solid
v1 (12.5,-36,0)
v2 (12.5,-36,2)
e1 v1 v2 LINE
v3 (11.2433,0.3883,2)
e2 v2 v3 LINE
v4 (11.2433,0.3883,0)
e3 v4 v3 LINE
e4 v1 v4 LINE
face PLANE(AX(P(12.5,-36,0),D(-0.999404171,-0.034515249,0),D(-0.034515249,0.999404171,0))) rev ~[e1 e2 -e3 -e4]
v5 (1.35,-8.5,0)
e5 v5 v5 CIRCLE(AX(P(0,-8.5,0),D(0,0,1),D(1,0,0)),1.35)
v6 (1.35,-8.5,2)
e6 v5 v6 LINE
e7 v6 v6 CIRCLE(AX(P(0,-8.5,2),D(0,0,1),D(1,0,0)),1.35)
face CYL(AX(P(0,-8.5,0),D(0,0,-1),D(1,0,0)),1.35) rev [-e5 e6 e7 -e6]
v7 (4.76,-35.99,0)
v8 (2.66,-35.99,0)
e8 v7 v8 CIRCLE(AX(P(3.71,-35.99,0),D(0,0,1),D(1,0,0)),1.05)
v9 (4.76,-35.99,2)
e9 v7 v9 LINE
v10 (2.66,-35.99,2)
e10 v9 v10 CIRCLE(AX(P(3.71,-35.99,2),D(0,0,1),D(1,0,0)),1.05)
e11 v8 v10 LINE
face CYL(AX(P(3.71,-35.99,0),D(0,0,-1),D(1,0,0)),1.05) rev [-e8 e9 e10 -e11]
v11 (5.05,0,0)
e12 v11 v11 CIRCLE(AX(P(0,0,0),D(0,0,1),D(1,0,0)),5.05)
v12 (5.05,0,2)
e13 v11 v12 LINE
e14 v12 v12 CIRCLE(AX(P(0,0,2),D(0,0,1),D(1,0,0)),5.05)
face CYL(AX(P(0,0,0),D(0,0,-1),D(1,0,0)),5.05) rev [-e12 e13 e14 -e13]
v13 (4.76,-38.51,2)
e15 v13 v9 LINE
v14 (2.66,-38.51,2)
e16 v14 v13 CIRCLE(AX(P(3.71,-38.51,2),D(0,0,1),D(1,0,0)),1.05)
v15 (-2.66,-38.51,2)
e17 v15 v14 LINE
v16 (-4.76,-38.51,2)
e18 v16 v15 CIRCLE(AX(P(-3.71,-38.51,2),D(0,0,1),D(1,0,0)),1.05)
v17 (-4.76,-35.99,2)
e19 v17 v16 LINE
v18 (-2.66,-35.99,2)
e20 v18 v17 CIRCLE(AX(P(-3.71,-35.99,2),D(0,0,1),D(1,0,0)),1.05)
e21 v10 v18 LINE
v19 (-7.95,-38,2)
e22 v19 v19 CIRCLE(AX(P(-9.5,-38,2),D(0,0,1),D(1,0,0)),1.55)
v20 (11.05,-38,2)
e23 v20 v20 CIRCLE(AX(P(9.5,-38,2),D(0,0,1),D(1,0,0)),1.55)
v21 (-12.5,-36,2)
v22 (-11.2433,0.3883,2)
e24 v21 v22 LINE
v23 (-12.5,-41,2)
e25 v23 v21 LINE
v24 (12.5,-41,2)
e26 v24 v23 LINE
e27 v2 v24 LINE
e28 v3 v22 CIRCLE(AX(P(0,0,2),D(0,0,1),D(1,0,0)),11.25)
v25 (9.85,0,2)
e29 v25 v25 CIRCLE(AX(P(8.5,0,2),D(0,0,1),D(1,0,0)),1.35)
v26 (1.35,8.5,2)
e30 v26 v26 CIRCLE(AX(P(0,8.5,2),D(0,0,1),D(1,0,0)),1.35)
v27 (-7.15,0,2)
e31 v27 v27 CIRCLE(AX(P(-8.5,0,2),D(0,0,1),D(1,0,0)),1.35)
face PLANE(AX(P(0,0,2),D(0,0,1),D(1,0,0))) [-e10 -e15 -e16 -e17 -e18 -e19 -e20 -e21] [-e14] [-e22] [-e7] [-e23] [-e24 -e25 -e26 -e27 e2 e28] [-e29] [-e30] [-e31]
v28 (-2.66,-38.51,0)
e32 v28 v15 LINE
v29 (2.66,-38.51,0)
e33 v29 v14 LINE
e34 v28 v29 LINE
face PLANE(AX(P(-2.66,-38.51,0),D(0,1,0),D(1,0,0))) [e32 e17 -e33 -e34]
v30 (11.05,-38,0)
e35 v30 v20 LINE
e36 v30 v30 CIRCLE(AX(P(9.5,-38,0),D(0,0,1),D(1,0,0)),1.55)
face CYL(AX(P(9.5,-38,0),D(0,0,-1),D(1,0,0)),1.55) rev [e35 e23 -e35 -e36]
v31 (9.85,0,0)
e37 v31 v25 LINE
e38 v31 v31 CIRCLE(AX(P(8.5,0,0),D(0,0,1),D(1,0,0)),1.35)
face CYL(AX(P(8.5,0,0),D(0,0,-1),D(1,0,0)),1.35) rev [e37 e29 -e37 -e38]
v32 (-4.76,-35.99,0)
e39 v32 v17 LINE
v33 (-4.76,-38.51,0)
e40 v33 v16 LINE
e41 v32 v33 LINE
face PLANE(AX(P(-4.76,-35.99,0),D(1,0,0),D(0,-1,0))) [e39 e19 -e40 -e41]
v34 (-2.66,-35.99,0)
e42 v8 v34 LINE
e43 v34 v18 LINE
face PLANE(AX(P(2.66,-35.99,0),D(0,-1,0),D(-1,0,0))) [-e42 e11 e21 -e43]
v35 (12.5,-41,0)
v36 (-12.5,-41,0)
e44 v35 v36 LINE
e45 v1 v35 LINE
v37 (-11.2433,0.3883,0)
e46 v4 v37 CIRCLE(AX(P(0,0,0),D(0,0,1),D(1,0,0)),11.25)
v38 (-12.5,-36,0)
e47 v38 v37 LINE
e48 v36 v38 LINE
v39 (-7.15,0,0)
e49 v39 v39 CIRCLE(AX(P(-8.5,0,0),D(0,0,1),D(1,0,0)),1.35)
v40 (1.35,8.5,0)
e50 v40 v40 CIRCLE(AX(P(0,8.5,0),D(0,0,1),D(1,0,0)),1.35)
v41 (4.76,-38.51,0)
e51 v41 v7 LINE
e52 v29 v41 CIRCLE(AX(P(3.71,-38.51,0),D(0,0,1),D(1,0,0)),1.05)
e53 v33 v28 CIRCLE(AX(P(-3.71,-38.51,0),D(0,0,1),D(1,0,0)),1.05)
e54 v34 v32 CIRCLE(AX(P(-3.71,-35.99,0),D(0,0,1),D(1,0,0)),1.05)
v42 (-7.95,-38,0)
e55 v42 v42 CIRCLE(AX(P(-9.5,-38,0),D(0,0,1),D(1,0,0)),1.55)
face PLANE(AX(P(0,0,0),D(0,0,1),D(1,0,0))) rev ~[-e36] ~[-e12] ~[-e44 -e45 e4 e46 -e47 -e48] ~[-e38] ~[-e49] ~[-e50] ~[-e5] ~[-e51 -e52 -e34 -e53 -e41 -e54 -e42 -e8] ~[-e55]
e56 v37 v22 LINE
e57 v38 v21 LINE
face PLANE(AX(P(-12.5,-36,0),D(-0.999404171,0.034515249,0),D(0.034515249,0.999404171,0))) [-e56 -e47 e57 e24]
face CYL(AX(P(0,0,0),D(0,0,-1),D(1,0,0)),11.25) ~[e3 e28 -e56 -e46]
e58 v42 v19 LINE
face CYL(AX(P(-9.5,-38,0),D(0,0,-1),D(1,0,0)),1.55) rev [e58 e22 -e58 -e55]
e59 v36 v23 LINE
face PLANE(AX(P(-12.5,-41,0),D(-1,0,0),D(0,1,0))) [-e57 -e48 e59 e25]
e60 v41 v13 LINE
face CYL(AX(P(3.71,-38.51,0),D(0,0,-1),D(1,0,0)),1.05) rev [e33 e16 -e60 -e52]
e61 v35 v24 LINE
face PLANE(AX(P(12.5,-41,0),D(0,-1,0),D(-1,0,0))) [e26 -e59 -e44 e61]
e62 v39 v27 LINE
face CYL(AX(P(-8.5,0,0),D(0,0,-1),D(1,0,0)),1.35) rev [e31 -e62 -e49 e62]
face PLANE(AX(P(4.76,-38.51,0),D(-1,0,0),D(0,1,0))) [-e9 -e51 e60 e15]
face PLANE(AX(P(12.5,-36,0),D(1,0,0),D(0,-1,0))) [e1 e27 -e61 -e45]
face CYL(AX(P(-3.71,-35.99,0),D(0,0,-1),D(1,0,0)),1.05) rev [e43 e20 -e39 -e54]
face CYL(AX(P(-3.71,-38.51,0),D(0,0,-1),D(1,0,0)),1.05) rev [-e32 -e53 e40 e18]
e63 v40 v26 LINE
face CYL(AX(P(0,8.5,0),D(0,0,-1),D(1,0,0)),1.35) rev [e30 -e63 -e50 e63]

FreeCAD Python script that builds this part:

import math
import FreeCAD as App
import Part
import Sketcher
from FreeCAD import Vector
Q = App.Units.Quantity

doc = App.newDocument("Part")
params = doc.addObject("Spreadsheet::Sheet", "Params")
for row, (alias, value) in enumerate([
    ("sketch1_diameter", "2.7 mm"),
    ("sketch1_diameter2", "10.1 mm"),
    ("sketch1_diameter3", "3.1 mm"),
    ("sketch1_width", "25 mm"),
    ("sketch1_height", "5 mm"),
    ("pad1_length", "2 mm"),
], start=1):
    params.set(f"A{row}", alias)
    params.set(f"B{row}", "=" + value)
    params.setAlias(f"B{row}", alias)

body = doc.addObject("PartDesign::Body", "Body")

sketch1 = body.newObject("Sketcher::SketchObject", "Sketch")
sketch1.AttachmentSupport = (doc.getObject("XY_Plane"), [""])
sketch1.MapMode = "FlatFace"
sketch1.addGeometry(Part.ArcOfCircle(Part.Circle(Vector(0, 0, 0), Vector(0, 0, 1), 11.2), math.radians(2), math.radians(178)), False)
sketch1.addGeometry(Part.LineSegment(Vector(-11.2, 0.4, 0), Vector(-12.5, -36, 0)), False)
sketch1.addGeometry(Part.LineSegment(Vector(-12.5, -36, 0), Vector(-12.5, -41, 0)), False)
sketch1.addGeometry(Part.LineSegment(Vector(-12.5, -41, 0), Vector(12.5, -41, 0)), False)
sketch1.addGeometry(Part.LineSegment(Vector(12.5, -41, 0), Vector(12.5, -36, 0)), False)
sketch1.addGeometry(Part.LineSegment(Vector(12.5, -36, 0), Vector(11.2, 0.4, 0)), False)
sketch1.addGeometry(Part.Circle(Vector(-8.5, 0, 0), Vector(0, 0, 1), 1.4), False)
sketch1.addGeometry(Part.Circle(Vector(0, -8.5, 0), Vector(0, 0, 1), 1.4), False)
sketch1.addGeometry(Part.Circle(Vector(0, 0, 0), Vector(0, 0, 1), 5), False)
sketch1.addGeometry(Part.Circle(Vector(0, 8.5, 0), Vector(0, 0, 1), 1.4), False)
sketch1.addGeometry(Part.Circle(Vector(8.5, 0, 0), Vector(0, 0, 1), 1.4), False)
sketch1.addGeometry(Part.LineSegment(Vector(-4.8, -38.5, 0), Vector(-4.8, -36, 0)), False)
sketch1.addGeometry(Part.ArcOfCircle(Part.Circle(Vector(-3.7, -36, 0), Vector(0, 0, 1), 1.1), math.radians(0), math.radians(180)), False)
sketch1.addGeometry(Part.LineSegment(Vector(-2.7, -36, 0), Vector(2.7, -36, 0)), False)
sketch1.addGeometry(Part.ArcOfCircle(Part.Circle(Vector(3.7, -36, 0), Vector(0, 0, 1), 1.1), math.radians(0), math.radians(180)), False)
sketch1.addGeometry(Part.LineSegment(Vector(4.8, -36, 0), Vector(4.8, -38.5, 0)), False)
sketch1.addGeometry(Part.ArcOfCircle(Part.Circle(Vector(3.7, -38.5, 0), Vector(0, 0, 1), 1.1), math.radians(180), math.radians(360)), False)
sketch1.addGeometry(Part.LineSegment(Vector(2.7, -38.5, 0), Vector(-2.7, -38.5, 0)), False)
sketch1.addGeometry(Part.ArcOfCircle(Part.Circle(Vector(-3.7, -38.5, 0), Vector(0, 0, 1), 1.1), math.radians(180), math.radians(360)), False)
sketch1.addGeometry(Part.Circle(Vector(9.5, -38, 0), Vector(0, 0, 1), 1.6), False)
sketch1.addGeometry(Part.Circle(Vector(-9.5, -38, 0), Vector(0, 0, 1), 1.6), False)
sketch1.addConstraint(Sketcher.Constraint("Tangent", 0, 2, 1, 1))
sketch1.addConstraint(Sketcher.Constraint("Coincident", 1, 2, 2, 1))
sketch1.addConstraint(Sketcher.Constraint("Coincident", 2, 2, 3, 1))
sketch1.addConstraint(Sketcher.Constraint("Coincident", 3, 2, 4, 1))
sketch1.addConstraint(Sketcher.Constraint("Coincident", 4, 2, 5, 1))
sketch1.addConstraint(Sketcher.Constraint("Tangent", 5, 2, 0, 1))
sketch1.addConstraint(Sketcher.Constraint("Tangent", 11, 2, 12, 2))
sketch1.addConstraint(Sketcher.Constraint("Coincident", 12, 1, 13, 1))
sketch1.addConstraint(Sketcher.Constraint("Coincident", 13, 2, 14, 2))
sketch1.addConstraint(Sketcher.Constraint("Tangent", 14, 1, 15, 1))
sketch1.addConstraint(Sketcher.Constraint("Tangent", 15, 2, 16, 2))
sketch1.addConstraint(Sketcher.Constraint("Coincident", 16, 1, 17, 1))
sketch1.addConstraint(Sketcher.Constraint("Coincident", 17, 2, 18, 2))
sketch1.addConstraint(Sketcher.Constraint("Tangent", 18, 1, 11, 1))
sketch1.addConstraint(Sketcher.Constraint("Vertical", 2))
sketch1.addConstraint(Sketcher.Constraint("Horizontal", 3))
sketch1.addConstraint(Sketcher.Constraint("Vertical", 4))
sketch1.addConstraint(Sketcher.Constraint("Vertical", 11))
sketch1.addConstraint(Sketcher.Constraint("Horizontal", 13))
sketch1.addConstraint(Sketcher.Constraint("Vertical", 15))
sketch1.addConstraint(Sketcher.Constraint("Horizontal", 17))
sketch1.addConstraint(Sketcher.Constraint("Coincident", 0, 3, -1, 1))
sketch1.addConstraint(Sketcher.Constraint("Coincident", 8, 3, -1, 1))
sketch1.addConstraint(Sketcher.Constraint("Equal", 6, 7))
sketch1.addConstraint(Sketcher.Constraint("Equal", 7, 9))
sketch1.addConstraint(Sketcher.Constraint("Equal", 9, 10))
sketch1.addConstraint(Sketcher.Constraint("Equal", 12, 14))
sketch1.addConstraint(Sketcher.Constraint("Equal", 14, 16))
sketch1.addConstraint(Sketcher.Constraint("Equal", 16, 18))
sketch1.addConstraint(Sketcher.Constraint("Equal", 19, 20))
sketch1.addConstraint(Sketcher.Constraint("Symmetric", 7, 3, 9, 3, -1, 1))
sketch1.addConstraint(Sketcher.Constraint("Symmetric", 6, 3, 10, 3, -1, 1))
sketch1.addConstraint(Sketcher.Constraint("Symmetric", 12, 3, 14, 3, -2))
sketch1.addConstraint(Sketcher.Constraint("Symmetric", 19, 3, 20, 3, -2))
sketch1.addConstraint(Sketcher.Constraint("Symmetric", 1, 2, 4, 2, -2))
sketch1.addConstraint(Sketcher.Constraint("PointOnObject", 6, 3, -1))
sketch1.addConstraint(Sketcher.Constraint("PointOnObject", 7, 3, -2))
sketch1.addConstraint(Sketcher.Constraint("Horizontal", 16, 3, 18, 3))
sketch1.addConstraint(Sketcher.Constraint("Horizontal", 11, 2, 12, 1))
sketch1.addConstraint(Sketcher.Constraint("Horizontal", 15, 2, 16, 1))
sketch1.addConstraint(Sketcher.Constraint("Diameter", 6, Q("2.7 mm")))
sketch1.addConstraint(Sketcher.Constraint("Diameter", 8, Q("10.1 mm")))
sketch1.addConstraint(Sketcher.Constraint("Diameter", 19, Q("3.1 mm")))
sketch1.addConstraint(Sketcher.Constraint("DistanceX", 3, 1, 3, 2, Q("25 mm")))
sketch1.addConstraint(Sketcher.Constraint("DistanceY", 2, 2, 2, 1, Q("5 mm")))
sketch1.addConstraint(Sketcher.Constraint("Radius", 0, Q("11.25 mm")))
sketch1.addConstraint(Sketcher.Constraint("Radius", 12, Q("1.05 mm")))
sketch1.addConstraint(Sketcher.Constraint("DistanceY", 1, 2, -1, 1, Q("36 mm")))
sketch1.addConstraint(Sketcher.Constraint("DistanceX", 20, 3, 19, 3, Q("19 mm")))
sketch1.addConstraint(Sketcher.Constraint("DistanceY", 2, 2, 20, 3, Q("3 mm")))
sketch1.addConstraint(Sketcher.Constraint("DistanceX", 6, 3, -1, 1, Q("8.5 mm")))
sketch1.addConstraint(Sketcher.Constraint("DistanceY", 7, 3, -1, 1, Q("8.5 mm")))
sketch1.addConstraint(Sketcher.Constraint("DistanceY", 1, 2, 12, 3, Q("0.01 mm")))
sketch1.addConstraint(Sketcher.Constraint("DistanceX", 13, 1, 13, 2, Q("5.32 mm")))
sketch1.addConstraint(Sketcher.Constraint("DistanceY", 11, 1, 11, 2, Q("2.52 mm")))
sketch1.setExpression("Constraints[40]", "Params.sketch1_diameter")
sketch1.setExpression("Constraints[41]", "Params.sketch1_diameter2")
sketch1.setExpression("Constraints[42]", "Params.sketch1_diameter3")
sketch1.setExpression("Constraints[43]", "Params.sketch1_width")
sketch1.setExpression("Constraints[44]", "Params.sketch1_height")
pad1 = body.newObject("PartDesign::Pad", "Pad")
pad1.Profile = sketch1
pad1.setExpression("Length", "Params.pad1_length")

doc.recompute()
